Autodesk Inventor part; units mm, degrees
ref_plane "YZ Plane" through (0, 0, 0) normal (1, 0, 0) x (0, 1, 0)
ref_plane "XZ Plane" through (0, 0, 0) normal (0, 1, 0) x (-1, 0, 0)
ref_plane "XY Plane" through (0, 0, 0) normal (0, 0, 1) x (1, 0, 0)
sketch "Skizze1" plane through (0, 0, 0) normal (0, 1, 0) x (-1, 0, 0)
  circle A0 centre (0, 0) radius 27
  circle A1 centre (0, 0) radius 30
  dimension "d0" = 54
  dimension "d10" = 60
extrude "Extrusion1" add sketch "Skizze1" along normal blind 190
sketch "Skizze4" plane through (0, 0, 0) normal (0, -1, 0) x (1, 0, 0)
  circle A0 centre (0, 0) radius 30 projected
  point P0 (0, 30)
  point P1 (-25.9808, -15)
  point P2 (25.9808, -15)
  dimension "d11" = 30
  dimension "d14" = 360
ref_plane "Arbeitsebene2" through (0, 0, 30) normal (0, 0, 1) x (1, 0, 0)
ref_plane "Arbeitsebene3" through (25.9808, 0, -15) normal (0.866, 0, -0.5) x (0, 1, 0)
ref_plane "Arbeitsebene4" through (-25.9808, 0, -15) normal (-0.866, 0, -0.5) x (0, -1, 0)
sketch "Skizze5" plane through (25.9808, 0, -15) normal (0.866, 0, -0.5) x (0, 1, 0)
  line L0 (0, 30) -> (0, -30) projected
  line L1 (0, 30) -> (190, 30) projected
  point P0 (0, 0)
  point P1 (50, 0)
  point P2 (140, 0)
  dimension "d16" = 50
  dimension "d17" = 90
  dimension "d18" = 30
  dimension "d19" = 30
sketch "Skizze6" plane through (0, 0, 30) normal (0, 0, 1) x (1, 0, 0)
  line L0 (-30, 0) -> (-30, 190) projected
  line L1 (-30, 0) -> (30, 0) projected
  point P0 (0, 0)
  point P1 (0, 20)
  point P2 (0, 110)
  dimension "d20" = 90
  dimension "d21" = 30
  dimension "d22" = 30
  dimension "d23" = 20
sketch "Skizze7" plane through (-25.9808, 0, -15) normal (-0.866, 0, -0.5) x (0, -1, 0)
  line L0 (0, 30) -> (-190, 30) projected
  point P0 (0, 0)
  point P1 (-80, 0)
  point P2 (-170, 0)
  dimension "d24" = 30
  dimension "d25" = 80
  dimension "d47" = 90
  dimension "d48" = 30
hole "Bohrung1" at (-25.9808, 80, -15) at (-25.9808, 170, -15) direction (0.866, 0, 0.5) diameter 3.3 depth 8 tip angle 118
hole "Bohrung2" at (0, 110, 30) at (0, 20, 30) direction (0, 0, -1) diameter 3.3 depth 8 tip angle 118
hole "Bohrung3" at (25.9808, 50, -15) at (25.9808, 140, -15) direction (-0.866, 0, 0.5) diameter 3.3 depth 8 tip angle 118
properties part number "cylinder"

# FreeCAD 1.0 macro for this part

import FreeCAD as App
import Part
import Sketcher
Q = App.Units.Quantity

doc = App.newDocument("Part")
body = doc.addObject("PartDesign::Body", "Body")

sketch1 = body.newObject("Sketcher::SketchObject", "Sketch")
sketch1.AttachmentSupport = (doc.getObject("XZ_Plane"), [""])
sketch1.MapMode = "FlatFace"
sketch1.addGeometry([
    Part.Circle(App.Vector(0, 0, 0), App.Vector(0, 0, 1), 30),
    Part.Circle(App.Vector(0, 0, 0), App.Vector(0, 0, 1), 27),
], False)
sketch1.addConstraint([
    Sketcher.Constraint("Coincident", 0, 3, -1, 1),
    Sketcher.Constraint("Coincident", 1, 3, -1, 1),
    Sketcher.Constraint("Diameter", 0, Q("60 mm")),
    Sketcher.Constraint("Diameter", 1, Q("54 mm")),
])
pad1 = body.newObject("PartDesign::Pad", "Pad")
pad1.Profile = sketch1
pad1.Length = 190
pad1.Reversed = True

sketch2 = body.newObject("Sketcher::SketchObject", "Sketch001")
sketch2.Placement = App.Placement(App.Vector(-25.980791, 0, -15.000016), App.Rotation(App.Vector(-0.5, 0, 0.866025404), App.Vector(0, 1, 0), App.Vector(-0.866025404, 0, -0.5), "ZXY"))
sketch2.addGeometry([
    Part.Circle(App.Vector(0, 80, 0), App.Vector(0, 0, 1), 1.6),
    Part.Circle(App.Vector(0, 170, 0), App.Vector(0, 0, 1), 1.6),
], False)
sketch2.addConstraint([
    Sketcher.Constraint("Equal", 0, 1),
    Sketcher.Constraint("PointOnObject", 0, 3, -2),
    Sketcher.Constraint("PointOnObject", 1, 3, -2),
    Sketcher.Constraint("Diameter", 0, Q("3.3 mm")),
    Sketcher.Constraint("DistanceY", -1, 1, 0, 3, Q("80 mm")),
    Sketcher.Constraint("DistanceY", -1, 1, 1, 3, Q("170 mm")),
])
doc.recompute()
hole = body.newObject("PartDesign::Hole", "Hole")
hole.Profile = sketch2
hole.ThreadType = "None"
hole.Diameter = 3.3
hole.DepthType = "Dimension"
hole.Depth = 8
hole.DrillPoint = "Angled"
hole.DrillPointAngle = 118

sketch3 = body.newObject("Sketcher::SketchObject", "Sketch002")
sketch3.AttachmentSupport = (doc.getObject("XY_Plane"), [""])
sketch3.MapMode = "FlatFace"
sketch3.AttachmentOffset = App.Placement(App.Vector(0, 0, 30), App.Rotation())
sketch3.addGeometry([
    Part.Circle(App.Vector(0, 110, 0), App.Vector(0, 0, 1), 1.6),
    Part.Circle(App.Vector(0, 20, 0), App.Vector(0, 0, 1), 1.6),
], False)
sketch3.addConstraint([
    Sketcher.Constraint("Equal", 0, 1),
    Sketcher.Constraint("PointOnObject", 0, 3, -2),
    Sketcher.Constraint("PointOnObject", 1, 3, -2),
    Sketcher.Constraint("Diameter", 0, Q("3.3 mm")),
    Sketcher.Constraint("DistanceY", -1, 1, 0, 3, Q("110 mm")),
    Sketcher.Constraint("DistanceY", -1, 1, 1, 3, Q("20 mm")),
])
doc.recompute()
hole2 = body.newObject("PartDesign::Hole", "Hole001")
hole2.Profile = sketch3
hole2.ThreadType = "None"
hole2.Diameter = 3.3
hole2.DepthType = "Dimension"
hole2.Depth = 8
hole2.DrillPoint = "Angled"
hole2.DrillPointAngle = 118

sketch4 = body.newObject("Sketcher::SketchObject", "Sketch003")
sketch4.Placement = App.Placement(App.Vector(25.980791, 0, -15.000016), App.Rotation(App.Vector(-0.5, 0, -0.866025404), App.Vector(0, 1, 0), App.Vector(0.866025404, 0, -0.5), "ZXY"))
sketch4.addGeometry([
    Part.Circle(App.Vector(0, 50, 0), App.Vector(0, 0, 1), 1.6),
    Part.Circle(App.Vector(0, 140, 0), App.Vector(0, 0, 1), 1.6),
], False)
sketch4.addConstraint([
    Sketcher.Constraint("Equal", 0, 1),
    Sketcher.Constraint("PointOnObject", 0, 3, -2),
    Sketcher.Constraint("PointOnObject", 1, 3, -2),
    Sketcher.Constraint("Diameter", 0, Q("3.3 mm")),
    Sketcher.Constraint("DistanceY", -1, 1, 0, 3, Q("50 mm")),
    Sketcher.Constraint("DistanceY", -1, 1, 1, 3, Q("140 mm")),
])
doc.recompute()
hole3 = body.newObject("PartDesign::Hole", "Hole002")
hole3.Profile = sketch4
hole3.ThreadType = "None"
hole3.Diameter = 3.3
hole3.DepthType = "Dimension"
hole3.Depth = 8
hole3.DrillPoint = "Angled"
hole3.DrillPointAngle = 118

doc.recompute()
